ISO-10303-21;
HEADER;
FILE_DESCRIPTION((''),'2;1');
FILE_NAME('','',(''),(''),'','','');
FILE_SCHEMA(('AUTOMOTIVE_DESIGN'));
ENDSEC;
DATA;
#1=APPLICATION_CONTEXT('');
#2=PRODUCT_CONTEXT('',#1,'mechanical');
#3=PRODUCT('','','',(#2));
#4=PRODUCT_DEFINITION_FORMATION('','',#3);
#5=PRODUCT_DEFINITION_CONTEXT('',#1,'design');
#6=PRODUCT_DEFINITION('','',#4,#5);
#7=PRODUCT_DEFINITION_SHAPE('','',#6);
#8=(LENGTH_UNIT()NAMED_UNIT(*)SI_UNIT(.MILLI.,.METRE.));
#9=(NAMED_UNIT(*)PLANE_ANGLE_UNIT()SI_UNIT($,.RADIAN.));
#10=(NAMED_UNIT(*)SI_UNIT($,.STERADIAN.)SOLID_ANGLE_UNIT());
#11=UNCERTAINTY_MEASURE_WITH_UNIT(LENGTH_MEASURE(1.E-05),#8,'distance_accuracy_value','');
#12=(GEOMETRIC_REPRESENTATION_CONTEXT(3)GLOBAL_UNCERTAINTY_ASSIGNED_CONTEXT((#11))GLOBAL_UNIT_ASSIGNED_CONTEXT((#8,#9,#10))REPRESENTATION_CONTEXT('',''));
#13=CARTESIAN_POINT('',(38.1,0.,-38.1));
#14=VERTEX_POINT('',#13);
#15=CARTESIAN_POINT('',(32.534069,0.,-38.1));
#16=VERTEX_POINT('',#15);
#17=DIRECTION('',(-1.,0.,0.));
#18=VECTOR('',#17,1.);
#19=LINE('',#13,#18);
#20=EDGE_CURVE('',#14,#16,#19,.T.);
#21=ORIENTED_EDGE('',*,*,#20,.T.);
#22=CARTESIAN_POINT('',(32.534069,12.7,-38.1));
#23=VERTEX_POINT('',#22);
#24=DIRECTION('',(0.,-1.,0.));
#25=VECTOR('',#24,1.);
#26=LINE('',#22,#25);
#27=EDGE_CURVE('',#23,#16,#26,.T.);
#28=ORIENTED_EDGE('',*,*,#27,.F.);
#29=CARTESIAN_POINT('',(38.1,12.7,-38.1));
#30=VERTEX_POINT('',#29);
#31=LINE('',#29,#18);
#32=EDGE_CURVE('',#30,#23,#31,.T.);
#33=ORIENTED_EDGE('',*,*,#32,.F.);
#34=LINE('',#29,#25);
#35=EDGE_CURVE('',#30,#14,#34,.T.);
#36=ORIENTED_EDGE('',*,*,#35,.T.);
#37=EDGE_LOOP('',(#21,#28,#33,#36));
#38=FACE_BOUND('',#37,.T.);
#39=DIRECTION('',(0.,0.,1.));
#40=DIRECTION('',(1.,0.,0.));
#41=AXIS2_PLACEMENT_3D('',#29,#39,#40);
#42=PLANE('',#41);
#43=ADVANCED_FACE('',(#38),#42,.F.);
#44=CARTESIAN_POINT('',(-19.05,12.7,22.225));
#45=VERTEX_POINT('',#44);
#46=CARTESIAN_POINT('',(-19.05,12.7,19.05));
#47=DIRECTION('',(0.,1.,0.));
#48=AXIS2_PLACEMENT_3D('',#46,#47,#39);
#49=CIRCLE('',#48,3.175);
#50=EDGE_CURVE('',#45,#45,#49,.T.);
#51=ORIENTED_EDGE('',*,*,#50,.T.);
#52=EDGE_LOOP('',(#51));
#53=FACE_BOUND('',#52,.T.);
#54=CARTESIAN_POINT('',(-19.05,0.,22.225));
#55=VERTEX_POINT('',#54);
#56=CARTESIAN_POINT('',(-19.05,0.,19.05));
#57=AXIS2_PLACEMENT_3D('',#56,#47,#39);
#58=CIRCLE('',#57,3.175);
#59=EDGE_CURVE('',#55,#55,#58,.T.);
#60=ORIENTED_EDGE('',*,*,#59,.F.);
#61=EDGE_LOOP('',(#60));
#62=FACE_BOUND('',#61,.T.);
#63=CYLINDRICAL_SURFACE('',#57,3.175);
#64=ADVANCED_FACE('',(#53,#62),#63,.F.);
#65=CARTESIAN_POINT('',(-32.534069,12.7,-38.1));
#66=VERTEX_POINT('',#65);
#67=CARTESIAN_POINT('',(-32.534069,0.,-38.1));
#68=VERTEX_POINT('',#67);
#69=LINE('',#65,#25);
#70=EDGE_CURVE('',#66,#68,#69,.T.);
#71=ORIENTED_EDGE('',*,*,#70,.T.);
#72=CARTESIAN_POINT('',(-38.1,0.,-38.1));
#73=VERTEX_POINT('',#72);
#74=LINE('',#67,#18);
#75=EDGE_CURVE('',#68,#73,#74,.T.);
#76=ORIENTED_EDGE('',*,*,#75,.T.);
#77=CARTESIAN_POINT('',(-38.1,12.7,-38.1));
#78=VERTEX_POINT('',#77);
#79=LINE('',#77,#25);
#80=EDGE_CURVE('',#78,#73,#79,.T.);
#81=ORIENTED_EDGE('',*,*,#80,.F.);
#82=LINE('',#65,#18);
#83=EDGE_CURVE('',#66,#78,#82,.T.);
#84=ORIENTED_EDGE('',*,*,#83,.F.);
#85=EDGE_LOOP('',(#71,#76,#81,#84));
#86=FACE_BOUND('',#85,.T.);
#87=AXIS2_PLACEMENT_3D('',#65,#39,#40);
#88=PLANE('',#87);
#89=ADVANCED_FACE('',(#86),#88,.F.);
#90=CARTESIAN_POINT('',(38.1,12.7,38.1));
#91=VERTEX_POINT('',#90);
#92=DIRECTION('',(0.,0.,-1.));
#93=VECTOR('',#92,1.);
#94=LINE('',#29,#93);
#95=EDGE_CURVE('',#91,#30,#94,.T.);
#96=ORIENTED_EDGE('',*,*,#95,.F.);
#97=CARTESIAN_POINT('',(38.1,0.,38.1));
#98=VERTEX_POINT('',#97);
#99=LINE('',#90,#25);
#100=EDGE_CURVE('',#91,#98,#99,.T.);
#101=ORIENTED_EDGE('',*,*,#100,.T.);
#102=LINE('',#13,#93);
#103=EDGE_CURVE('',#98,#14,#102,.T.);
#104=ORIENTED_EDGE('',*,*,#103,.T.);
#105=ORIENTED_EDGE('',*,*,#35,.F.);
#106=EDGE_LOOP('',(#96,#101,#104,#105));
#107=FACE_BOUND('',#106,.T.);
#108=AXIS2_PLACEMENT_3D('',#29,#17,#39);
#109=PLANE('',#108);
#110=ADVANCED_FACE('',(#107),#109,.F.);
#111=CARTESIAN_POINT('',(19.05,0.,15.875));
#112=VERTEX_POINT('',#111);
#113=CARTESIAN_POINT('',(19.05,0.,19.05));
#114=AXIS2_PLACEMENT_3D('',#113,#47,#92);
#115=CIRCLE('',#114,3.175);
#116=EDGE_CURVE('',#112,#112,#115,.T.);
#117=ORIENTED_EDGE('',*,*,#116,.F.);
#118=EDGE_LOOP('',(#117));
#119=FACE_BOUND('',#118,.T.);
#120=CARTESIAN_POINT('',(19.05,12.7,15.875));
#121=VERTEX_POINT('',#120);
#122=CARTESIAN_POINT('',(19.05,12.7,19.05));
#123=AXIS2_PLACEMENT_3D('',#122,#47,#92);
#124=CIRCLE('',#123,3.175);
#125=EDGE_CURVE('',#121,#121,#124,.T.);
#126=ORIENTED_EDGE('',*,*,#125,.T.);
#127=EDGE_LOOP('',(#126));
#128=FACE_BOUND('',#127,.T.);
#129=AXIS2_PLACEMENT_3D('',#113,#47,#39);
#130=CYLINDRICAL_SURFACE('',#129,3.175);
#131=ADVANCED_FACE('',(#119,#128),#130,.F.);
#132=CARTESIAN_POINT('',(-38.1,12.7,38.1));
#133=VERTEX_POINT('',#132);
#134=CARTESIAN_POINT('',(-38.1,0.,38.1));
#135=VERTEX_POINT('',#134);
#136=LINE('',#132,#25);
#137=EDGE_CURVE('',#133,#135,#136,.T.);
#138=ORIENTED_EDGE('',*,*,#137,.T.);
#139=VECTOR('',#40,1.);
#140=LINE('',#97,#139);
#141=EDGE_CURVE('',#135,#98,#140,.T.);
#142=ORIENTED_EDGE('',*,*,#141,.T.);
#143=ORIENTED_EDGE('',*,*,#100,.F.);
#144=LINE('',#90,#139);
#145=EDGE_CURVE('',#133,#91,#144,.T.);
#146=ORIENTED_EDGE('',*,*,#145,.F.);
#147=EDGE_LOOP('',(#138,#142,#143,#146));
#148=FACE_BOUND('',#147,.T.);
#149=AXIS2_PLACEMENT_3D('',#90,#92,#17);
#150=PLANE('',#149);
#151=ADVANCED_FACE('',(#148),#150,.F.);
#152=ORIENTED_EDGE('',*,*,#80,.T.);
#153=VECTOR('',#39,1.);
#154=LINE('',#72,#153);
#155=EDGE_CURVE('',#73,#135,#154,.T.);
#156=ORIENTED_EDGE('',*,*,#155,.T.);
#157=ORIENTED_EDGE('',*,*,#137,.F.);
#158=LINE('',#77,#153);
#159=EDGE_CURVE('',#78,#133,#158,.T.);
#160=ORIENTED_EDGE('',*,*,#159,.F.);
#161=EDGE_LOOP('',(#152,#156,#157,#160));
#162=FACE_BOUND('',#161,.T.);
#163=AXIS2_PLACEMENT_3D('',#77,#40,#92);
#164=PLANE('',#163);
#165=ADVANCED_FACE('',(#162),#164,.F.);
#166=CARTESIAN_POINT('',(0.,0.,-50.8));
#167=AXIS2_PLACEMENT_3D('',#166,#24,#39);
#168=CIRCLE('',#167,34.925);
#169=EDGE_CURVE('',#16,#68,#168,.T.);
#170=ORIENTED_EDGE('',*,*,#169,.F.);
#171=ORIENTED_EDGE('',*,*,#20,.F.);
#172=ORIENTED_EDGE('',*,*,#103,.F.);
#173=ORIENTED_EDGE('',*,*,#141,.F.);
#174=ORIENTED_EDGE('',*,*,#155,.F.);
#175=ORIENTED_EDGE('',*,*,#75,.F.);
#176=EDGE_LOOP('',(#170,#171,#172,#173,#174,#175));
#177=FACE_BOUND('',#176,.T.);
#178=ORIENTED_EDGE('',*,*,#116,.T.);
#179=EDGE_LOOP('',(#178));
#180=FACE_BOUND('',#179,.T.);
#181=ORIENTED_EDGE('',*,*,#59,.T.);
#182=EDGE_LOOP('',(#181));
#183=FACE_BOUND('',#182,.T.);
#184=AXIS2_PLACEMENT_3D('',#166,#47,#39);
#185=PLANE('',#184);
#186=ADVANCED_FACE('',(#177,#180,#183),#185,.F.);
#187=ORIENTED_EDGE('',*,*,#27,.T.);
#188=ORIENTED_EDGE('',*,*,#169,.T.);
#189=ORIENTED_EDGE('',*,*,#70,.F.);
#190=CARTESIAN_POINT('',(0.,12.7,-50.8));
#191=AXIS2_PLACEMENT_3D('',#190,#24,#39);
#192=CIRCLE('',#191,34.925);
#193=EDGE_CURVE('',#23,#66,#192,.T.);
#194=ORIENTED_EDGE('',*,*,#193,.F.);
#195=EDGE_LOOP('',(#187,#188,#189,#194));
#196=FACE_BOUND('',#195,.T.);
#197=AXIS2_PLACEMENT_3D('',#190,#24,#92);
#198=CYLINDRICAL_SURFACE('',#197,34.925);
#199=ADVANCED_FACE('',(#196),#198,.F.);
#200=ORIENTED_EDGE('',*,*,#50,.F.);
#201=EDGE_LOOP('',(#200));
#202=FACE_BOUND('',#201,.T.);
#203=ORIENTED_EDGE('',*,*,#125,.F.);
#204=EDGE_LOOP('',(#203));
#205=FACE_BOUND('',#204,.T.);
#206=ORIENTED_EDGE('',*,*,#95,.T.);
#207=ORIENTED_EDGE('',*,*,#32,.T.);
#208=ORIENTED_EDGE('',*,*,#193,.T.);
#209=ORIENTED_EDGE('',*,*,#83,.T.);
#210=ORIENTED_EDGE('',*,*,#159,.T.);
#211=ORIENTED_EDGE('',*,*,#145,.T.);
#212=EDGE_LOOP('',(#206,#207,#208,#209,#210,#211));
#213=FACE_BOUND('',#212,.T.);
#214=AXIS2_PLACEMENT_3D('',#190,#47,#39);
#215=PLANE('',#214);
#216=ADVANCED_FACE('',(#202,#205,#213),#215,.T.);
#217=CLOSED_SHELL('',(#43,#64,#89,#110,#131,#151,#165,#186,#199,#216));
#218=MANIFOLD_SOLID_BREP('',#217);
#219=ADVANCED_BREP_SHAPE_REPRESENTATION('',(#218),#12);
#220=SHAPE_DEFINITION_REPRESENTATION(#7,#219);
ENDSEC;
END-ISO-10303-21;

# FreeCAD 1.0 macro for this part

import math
import FreeCAD as App
import Part
import Sketcher

V = App.Vector
Q = App.Units.Quantity

doc = App.newDocument("Part")
body = doc.addObject("PartDesign::Body", "Body")

sketch1 = doc.addObject("Sketcher::SketchObject", "Sketch")
body.addObject(sketch1)
sketch1.AttachmentSupport = (doc.XZ_Plane, [""])
sketch1.MapMode = "FlatFace"
sketch1.addGeometry([
    Part.LineSegment(V(38.1, -38.1, 0), V(32.534069, -38.1, 0)),
    Part.ArcOfCircle(Part.Circle(V(0, -50.8, 0), V(0, 0, 1), 34.925), math.radians(21.323686), math.radians(158.676314)),
    Part.LineSegment(V(-32.534069, -38.1, 0), V(-38.1, -38.1, 0)),
    Part.LineSegment(V(-38.1, -38.1, 0), V(-38.1, 38.1, 0)),
    Part.LineSegment(V(-38.1, 38.1, 0), V(38.1, 38.1, 0)),
    Part.LineSegment(V(38.1, 38.1, 0), V(38.1, -38.1, 0)),
], False)
sketch1.addConstraint([
    Sketcher.Constraint("Coincident", 0, 2, 1, 1),
    Sketcher.Constraint("Coincident", 1, 2, 2, 1),
    Sketcher.Constraint("Coincident", 2, 2, 3, 1),
    Sketcher.Constraint("Coincident", 3, 2, 4, 1),
    Sketcher.Constraint("Coincident", 4, 2, 5, 1),
    Sketcher.Constraint("Coincident", 5, 2, 0, 1),
    Sketcher.Constraint("Horizontal", 0),
    Sketcher.Constraint("Horizontal", 2),
    Sketcher.Constraint("Vertical", 3),
    Sketcher.Constraint("Horizontal", 4),
    Sketcher.Constraint("Vertical", 5),
    Sketcher.Constraint("Symmetric", 2, 2, 4, 2, -1, 1),
    Sketcher.Constraint("Symmetric", 0, 2, 1, 2, -2),
    Sketcher.Constraint("Equal", 4, 3),
    Sketcher.Constraint("DistanceX", 4, 1, 4, 2, Q("3 in")),
    Sketcher.Constraint("DistanceY", 1, 3, -1, 1, Q("2 in")),
    Sketcher.Constraint("Radius", 1, Q("1.375 in")),
])
pad1 = doc.addObject("PartDesign::Pad", "Pad")
body.addObject(pad1)
pad1.Profile = sketch1
pad1.Length = Q("0.5 in")
pad1.Reversed = True

sketch2 = doc.addObject("Sketcher::SketchObject", "Sketch001")
body.addObject(sketch2)
sketch2.AttachmentSupport = (doc.XZ_Plane, [""])
sketch2.MapMode = "FlatFace"
sketch2.AttachmentOffset = App.Placement(V(0, 0, -0.5 * 25.4), App.Rotation())
sketch2.addGeometry([
    Part.Circle(V(-19.05, 19.05, 0), V(0, 0, 1), 3.175),
    Part.Circle(V(19.05, 19.05, 0), V(0, 0, 1), 3.175),
], False)
sketch2.addConstraint([
    Sketcher.Constraint("Equal", 0, 1),
    Sketcher.Constraint("Symmetric", 0, 3, 1, 3, -2),
    Sketcher.Constraint("Diameter", 0, Q("0.25 in")),
    Sketcher.Constraint("DistanceX", 0, 3, 1, 3, Q("1.5 in")),
    Sketcher.Constraint("DistanceY", -1, 1, 0, 3, Q("0.75 in")),
])
pocket1 = doc.addObject("PartDesign::Pocket", "Pocket")
body.addObject(pocket1)
pocket1.Profile = sketch2
pocket1.Length = Q("0.5 in")
pocket1.Reversed = True

doc.recompute()
